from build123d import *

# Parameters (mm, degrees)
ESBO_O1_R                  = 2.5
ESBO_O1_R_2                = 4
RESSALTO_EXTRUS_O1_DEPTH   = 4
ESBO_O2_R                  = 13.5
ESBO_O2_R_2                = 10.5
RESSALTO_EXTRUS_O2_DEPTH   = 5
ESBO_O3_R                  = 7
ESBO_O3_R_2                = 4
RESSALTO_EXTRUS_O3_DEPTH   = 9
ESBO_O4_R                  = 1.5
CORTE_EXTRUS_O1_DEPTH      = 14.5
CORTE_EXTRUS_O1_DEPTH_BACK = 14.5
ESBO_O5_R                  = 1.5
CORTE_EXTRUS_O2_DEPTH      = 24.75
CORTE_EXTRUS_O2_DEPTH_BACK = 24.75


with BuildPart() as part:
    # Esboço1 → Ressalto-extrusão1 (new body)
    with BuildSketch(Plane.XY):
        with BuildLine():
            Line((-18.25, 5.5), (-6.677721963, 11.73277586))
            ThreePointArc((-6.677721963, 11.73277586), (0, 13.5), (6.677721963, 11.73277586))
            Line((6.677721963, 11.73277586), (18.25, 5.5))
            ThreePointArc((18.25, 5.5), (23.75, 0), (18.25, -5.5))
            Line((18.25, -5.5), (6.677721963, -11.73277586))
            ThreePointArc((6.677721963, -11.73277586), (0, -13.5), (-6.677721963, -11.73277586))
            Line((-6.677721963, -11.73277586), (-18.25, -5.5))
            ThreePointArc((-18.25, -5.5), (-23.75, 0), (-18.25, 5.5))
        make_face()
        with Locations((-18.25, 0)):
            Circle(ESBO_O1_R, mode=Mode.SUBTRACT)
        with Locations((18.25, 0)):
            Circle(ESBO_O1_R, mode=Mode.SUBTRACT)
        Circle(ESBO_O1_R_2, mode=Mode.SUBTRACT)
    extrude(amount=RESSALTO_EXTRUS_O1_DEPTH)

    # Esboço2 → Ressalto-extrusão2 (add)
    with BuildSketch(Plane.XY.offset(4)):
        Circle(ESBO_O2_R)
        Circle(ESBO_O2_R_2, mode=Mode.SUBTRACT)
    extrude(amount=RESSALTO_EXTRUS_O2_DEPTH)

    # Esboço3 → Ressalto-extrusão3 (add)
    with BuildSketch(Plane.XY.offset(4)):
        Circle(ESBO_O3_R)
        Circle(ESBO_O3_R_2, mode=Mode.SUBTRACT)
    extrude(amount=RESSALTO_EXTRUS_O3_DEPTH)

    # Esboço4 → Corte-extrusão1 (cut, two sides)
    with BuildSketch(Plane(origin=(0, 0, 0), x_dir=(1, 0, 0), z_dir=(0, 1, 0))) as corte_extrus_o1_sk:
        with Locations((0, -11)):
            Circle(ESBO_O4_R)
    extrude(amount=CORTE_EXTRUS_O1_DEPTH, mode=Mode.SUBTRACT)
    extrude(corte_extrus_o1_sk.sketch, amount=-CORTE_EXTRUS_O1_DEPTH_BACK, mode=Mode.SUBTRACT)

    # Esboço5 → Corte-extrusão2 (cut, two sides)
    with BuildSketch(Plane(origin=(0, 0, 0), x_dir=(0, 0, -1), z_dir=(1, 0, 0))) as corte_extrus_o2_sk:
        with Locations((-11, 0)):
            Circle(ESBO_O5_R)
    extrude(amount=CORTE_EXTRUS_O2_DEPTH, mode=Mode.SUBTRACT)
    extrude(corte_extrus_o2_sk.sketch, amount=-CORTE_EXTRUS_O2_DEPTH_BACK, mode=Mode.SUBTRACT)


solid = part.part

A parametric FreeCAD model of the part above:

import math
import FreeCAD as App
import Part
import Sketcher
Q = App.Units.Quantity

doc = App.newDocument("Part")
params = doc.addObject("Spreadsheet::Sheet", "Params")
for row, (alias, value) in enumerate([
    ("sketch1_diameter", "5 mm"),
    ("sketch1_diameter2", "8 mm"),
    ("sketch1_radius", "5.5 mm"),
    ("sketch1_radius2", "13.5 mm"),
    ("pad1_length", "4 mm"),
    ("sketch2_diameter", "27 mm"),
    ("sketch2_diameter2", "21 mm"),
    ("pad2_length", "5 mm"),
    ("sketch3_diameter", "14 mm"),
    ("sketch3_diameter2", "8 mm"),
    ("pad3_length", "9 mm"),
    ("sketch4_diameter", "3 mm"),
    ("sketch5_diameter", "3 mm"),
], start=1):
    params.set(f"A{row}", alias)
    params.set(f"B{row}", "=" + value)
    params.setAlias(f"B{row}", alias)

body = doc.addObject("PartDesign::Body", "Body")

sketch1 = body.newObject("Sketcher::SketchObject", "Sketch")
sketch1.AttachmentSupport = (doc.getObject("XY_Plane"), [""])
sketch1.MapMode = "FlatFace"
sketch1.addGeometry([
    Part.LineSegment(App.Vector(-6.7, 11.7, 0), App.Vector(-18.2, 5.5, 0)),
    Part.ArcOfCircle(Part.Circle(App.Vector(-18.2, 0, 0), App.Vector(0, 0, 1), 5.5), math.radians(90), math.radians(270)),
    Part.LineSegment(App.Vector(-18.2, -5.5, 0), App.Vector(-6.7, -11.7, 0)),
    Part.ArcOfCircle(Part.Circle(App.Vector(0, 0, 0), App.Vector(0, 0, 1), 13.5), math.radians(-120), math.radians(-60)),
    Part.LineSegment(App.Vector(6.7, -11.7, 0), App.Vector(18.2, -5.5, 0)),
    Part.ArcOfCircle(Part.Circle(App.Vector(18.2, 0, 0), App.Vector(0, 0, 1), 5.5), math.radians(-90), math.radians(90)),
    Part.LineSegment(App.Vector(18.2, 5.5, 0), App.Vector(6.7, 11.7, 0)),
    Part.ArcOfCircle(Part.Circle(App.Vector(0, 0, 0), App.Vector(0, 0, 1), 13.5), math.radians(60), math.radians(120)),
    Part.Circle(App.Vector(18.2, 0, 0), App.Vector(0, 0, 1), 2.5),
    Part.Circle(App.Vector(0, 0, 0), App.Vector(0, 0, 1), 4),
    Part.Circle(App.Vector(-18.2, 0, 0), App.Vector(0, 0, 1), 2.5),
], False)
sketch1.addConstraint([
    Sketcher.Constraint("Coincident", 0, 2, 1, 1),
    Sketcher.Constraint("Coincident", 1, 2, 2, 1),
    Sketcher.Constraint("Coincident", 2, 2, 3, 1),
    Sketcher.Constraint("Coincident", 3, 2, 4, 1),
    Sketcher.Constraint("Coincident", 4, 2, 5, 1),
    Sketcher.Constraint("Coincident", 5, 2, 6, 1),
    Sketcher.Constraint("Coincident", 6, 2, 7, 1),
    Sketcher.Constraint("Coincident", 7, 2, 0, 1),
    Sketcher.Constraint("Coincident", 3, 3, -1, 1),
    Sketcher.Constraint("Coincident", 7, 3, -1, 1),
    Sketcher.Constraint("Coincident", 9, 3, -1, 1),
    Sketcher.Constraint("Coincident", 8, 3, 5, 3),
    Sketcher.Constraint("Coincident", 10, 3, 1, 3),
    Sketcher.Constraint("Equal", 1, 5),
    Sketcher.Constraint("Equal", 3, 7),
    Sketcher.Constraint("Equal", 8, 10),
    Sketcher.Constraint("Symmetric", 1, 3, 5, 3, -1, 1),
    Sketcher.Constraint("Symmetric", 1, 2, 4, 2, -2),
    Sketcher.Constraint("Parallel", 0, 4),
    Sketcher.Constraint("Parallel", 2, 6),
    Sketcher.Constraint("Horizontal", 2, 2, 3, 2),
    Sketcher.Constraint("Horizontal", 6, 2, 7, 2),
    Sketcher.Constraint("Vertical", 10, 3, 0, 2),
    Sketcher.Constraint("Vertical", 0, 2, 1, 2),
    Sketcher.Constraint("Diameter", 8, Q("5 mm")),
    Sketcher.Constraint("Diameter", 9, Q("8 mm")),
    Sketcher.Constraint("Radius", 1, Q("5.5 mm")),
    Sketcher.Constraint("Radius", 3, Q("13.5 mm")),
    Sketcher.Constraint("DistanceX", 1, 3, 5, 3, Q("36.5 mm")),
    Sketcher.Constraint("DistanceX", 2, 2, -1, 1, Q("6.677722 mm")),
])
sketch1.setExpression("Constraints[24]", "Params.sketch1_diameter")
sketch1.setExpression("Constraints[25]", "Params.sketch1_diameter2")
sketch1.setExpression("Constraints[26]", "Params.sketch1_radius")
sketch1.setExpression("Constraints[27]", "Params.sketch1_radius2")
pad1 = body.newObject("PartDesign::Pad", "Pad")
pad1.Profile = sketch1
pad1.setExpression("Length", "Params.pad1_length")

sketch2 = body.newObject("Sketcher::SketchObject", "Sketch001")
sketch2.AttachmentSupport = (doc.getObject("XY_Plane"), [""])
sketch2.MapMode = "FlatFace"
sketch2.AttachmentOffset = App.Placement(App.Vector(0, 0, 4), App.Rotation())
sketch2.addGeometry([
    Part.Circle(App.Vector(0, 0, 0), App.Vector(0, 0, 1), 14),
    Part.Circle(App.Vector(0, 0, 0), App.Vector(0, 0, 1), 10),
], False)
sketch2.addConstraint([
    Sketcher.Constraint("Coincident", 0, 3, -1, 1),
    Sketcher.Constraint("Coincident", 1, 3, -1, 1),
    Sketcher.Constraint("Diameter", 0, Q("27 mm")),
    Sketcher.Constraint("Diameter", 1, Q("21 mm")),
])
sketch2.setExpression("Constraints[2]", "Params.sketch2_diameter")
sketch2.setExpression("Constraints[3]", "Params.sketch2_diameter2")
pad2 = body.newObject("PartDesign::Pad", "Pad001")
pad2.Profile = sketch2
pad2.setExpression("Length", "Params.pad2_length")

sketch3 = body.newObject("Sketcher::SketchObject", "Sketch002")
sketch3.AttachmentSupport = (doc.getObject("XY_Plane"), [""])
sketch3.MapMode = "FlatFace"
sketch3.AttachmentOffset = App.Placement(App.Vector(0, 0, 4), App.Rotation())
sketch3.addGeometry([
    Part.Circle(App.Vector(0, 0, 0), App.Vector(0, 0, 1), 7),
    Part.Circle(App.Vector(0, 0, 0), App.Vector(0, 0, 1), 4),
], False)
sketch3.addConstraint([
    Sketcher.Constraint("Coincident", 0, 3, -1, 1),
    Sketcher.Constraint("Coincident", 1, 3, -1, 1),
    Sketcher.Constraint("Diameter", 0, Q("14 mm")),
    Sketcher.Constraint("Diameter", 1, Q("8 mm")),
])
sketch3.setExpression("Constraints[2]", "Params.sketch3_diameter")
sketch3.setExpression("Constraints[3]", "Params.sketch3_diameter2")
pad3 = body.newObject("PartDesign::Pad", "Pad002")
pad3.Profile = sketch3
pad3.setExpression("Length", "Params.pad3_length")

sketch4 = body.newObject("Sketcher::SketchObject", "Sketch003")
sketch4.AttachmentSupport = (doc.getObject("XZ_Plane"), [""])
sketch4.MapMode = "FlatFace"
sketch4.addGeometry(Part.Circle(App.Vector(0, 11, 0), App.Vector(0, 0, 1), 1.5), False)
sketch4.addConstraint([
    Sketcher.Constraint("PointOnObject", 0, 3, -2),
    Sketcher.Constraint("Diameter", 0, Q("3 mm")),
    Sketcher.Constraint("DistanceY", -1, 1, 0, 3, Q("11 mm")),
])
sketch4.setExpression("Constraints[1]", "Params.sketch4_diameter")
pocket1 = body.newObject("PartDesign::Pocket", "Pocket")
pocket1.Profile = sketch4
pocket1.Type = "ThroughAll"
pocket1.Midplane = True

sketch5 = body.newObject("Sketcher::SketchObject", "Sketch004")
sketch5.AttachmentSupport = (doc.getObject("YZ_Plane"), [""])
sketch5.MapMode = "FlatFace"
sketch5.addGeometry(Part.Circle(App.Vector(0, 11, 0), App.Vector(0, 0, 1), 1.5), False)
sketch5.addConstraint([
    Sketcher.Constraint("PointOnObject", 0, 3, -2),
    Sketcher.Constraint("Diameter", 0, Q("3 mm")),
    Sketcher.Constraint("DistanceY", -1, 1, 0, 3, Q("11 mm")),
])
sketch5.setExpression("Constraints[1]", "Params.sketch5_diameter")
pocket2 = body.newObject("PartDesign::Pocket", "Pocket001")
pocket2.Profile = sketch5
pocket2.Type = "ThroughAll"
pocket2.Midplane = True

doc.recompute()
